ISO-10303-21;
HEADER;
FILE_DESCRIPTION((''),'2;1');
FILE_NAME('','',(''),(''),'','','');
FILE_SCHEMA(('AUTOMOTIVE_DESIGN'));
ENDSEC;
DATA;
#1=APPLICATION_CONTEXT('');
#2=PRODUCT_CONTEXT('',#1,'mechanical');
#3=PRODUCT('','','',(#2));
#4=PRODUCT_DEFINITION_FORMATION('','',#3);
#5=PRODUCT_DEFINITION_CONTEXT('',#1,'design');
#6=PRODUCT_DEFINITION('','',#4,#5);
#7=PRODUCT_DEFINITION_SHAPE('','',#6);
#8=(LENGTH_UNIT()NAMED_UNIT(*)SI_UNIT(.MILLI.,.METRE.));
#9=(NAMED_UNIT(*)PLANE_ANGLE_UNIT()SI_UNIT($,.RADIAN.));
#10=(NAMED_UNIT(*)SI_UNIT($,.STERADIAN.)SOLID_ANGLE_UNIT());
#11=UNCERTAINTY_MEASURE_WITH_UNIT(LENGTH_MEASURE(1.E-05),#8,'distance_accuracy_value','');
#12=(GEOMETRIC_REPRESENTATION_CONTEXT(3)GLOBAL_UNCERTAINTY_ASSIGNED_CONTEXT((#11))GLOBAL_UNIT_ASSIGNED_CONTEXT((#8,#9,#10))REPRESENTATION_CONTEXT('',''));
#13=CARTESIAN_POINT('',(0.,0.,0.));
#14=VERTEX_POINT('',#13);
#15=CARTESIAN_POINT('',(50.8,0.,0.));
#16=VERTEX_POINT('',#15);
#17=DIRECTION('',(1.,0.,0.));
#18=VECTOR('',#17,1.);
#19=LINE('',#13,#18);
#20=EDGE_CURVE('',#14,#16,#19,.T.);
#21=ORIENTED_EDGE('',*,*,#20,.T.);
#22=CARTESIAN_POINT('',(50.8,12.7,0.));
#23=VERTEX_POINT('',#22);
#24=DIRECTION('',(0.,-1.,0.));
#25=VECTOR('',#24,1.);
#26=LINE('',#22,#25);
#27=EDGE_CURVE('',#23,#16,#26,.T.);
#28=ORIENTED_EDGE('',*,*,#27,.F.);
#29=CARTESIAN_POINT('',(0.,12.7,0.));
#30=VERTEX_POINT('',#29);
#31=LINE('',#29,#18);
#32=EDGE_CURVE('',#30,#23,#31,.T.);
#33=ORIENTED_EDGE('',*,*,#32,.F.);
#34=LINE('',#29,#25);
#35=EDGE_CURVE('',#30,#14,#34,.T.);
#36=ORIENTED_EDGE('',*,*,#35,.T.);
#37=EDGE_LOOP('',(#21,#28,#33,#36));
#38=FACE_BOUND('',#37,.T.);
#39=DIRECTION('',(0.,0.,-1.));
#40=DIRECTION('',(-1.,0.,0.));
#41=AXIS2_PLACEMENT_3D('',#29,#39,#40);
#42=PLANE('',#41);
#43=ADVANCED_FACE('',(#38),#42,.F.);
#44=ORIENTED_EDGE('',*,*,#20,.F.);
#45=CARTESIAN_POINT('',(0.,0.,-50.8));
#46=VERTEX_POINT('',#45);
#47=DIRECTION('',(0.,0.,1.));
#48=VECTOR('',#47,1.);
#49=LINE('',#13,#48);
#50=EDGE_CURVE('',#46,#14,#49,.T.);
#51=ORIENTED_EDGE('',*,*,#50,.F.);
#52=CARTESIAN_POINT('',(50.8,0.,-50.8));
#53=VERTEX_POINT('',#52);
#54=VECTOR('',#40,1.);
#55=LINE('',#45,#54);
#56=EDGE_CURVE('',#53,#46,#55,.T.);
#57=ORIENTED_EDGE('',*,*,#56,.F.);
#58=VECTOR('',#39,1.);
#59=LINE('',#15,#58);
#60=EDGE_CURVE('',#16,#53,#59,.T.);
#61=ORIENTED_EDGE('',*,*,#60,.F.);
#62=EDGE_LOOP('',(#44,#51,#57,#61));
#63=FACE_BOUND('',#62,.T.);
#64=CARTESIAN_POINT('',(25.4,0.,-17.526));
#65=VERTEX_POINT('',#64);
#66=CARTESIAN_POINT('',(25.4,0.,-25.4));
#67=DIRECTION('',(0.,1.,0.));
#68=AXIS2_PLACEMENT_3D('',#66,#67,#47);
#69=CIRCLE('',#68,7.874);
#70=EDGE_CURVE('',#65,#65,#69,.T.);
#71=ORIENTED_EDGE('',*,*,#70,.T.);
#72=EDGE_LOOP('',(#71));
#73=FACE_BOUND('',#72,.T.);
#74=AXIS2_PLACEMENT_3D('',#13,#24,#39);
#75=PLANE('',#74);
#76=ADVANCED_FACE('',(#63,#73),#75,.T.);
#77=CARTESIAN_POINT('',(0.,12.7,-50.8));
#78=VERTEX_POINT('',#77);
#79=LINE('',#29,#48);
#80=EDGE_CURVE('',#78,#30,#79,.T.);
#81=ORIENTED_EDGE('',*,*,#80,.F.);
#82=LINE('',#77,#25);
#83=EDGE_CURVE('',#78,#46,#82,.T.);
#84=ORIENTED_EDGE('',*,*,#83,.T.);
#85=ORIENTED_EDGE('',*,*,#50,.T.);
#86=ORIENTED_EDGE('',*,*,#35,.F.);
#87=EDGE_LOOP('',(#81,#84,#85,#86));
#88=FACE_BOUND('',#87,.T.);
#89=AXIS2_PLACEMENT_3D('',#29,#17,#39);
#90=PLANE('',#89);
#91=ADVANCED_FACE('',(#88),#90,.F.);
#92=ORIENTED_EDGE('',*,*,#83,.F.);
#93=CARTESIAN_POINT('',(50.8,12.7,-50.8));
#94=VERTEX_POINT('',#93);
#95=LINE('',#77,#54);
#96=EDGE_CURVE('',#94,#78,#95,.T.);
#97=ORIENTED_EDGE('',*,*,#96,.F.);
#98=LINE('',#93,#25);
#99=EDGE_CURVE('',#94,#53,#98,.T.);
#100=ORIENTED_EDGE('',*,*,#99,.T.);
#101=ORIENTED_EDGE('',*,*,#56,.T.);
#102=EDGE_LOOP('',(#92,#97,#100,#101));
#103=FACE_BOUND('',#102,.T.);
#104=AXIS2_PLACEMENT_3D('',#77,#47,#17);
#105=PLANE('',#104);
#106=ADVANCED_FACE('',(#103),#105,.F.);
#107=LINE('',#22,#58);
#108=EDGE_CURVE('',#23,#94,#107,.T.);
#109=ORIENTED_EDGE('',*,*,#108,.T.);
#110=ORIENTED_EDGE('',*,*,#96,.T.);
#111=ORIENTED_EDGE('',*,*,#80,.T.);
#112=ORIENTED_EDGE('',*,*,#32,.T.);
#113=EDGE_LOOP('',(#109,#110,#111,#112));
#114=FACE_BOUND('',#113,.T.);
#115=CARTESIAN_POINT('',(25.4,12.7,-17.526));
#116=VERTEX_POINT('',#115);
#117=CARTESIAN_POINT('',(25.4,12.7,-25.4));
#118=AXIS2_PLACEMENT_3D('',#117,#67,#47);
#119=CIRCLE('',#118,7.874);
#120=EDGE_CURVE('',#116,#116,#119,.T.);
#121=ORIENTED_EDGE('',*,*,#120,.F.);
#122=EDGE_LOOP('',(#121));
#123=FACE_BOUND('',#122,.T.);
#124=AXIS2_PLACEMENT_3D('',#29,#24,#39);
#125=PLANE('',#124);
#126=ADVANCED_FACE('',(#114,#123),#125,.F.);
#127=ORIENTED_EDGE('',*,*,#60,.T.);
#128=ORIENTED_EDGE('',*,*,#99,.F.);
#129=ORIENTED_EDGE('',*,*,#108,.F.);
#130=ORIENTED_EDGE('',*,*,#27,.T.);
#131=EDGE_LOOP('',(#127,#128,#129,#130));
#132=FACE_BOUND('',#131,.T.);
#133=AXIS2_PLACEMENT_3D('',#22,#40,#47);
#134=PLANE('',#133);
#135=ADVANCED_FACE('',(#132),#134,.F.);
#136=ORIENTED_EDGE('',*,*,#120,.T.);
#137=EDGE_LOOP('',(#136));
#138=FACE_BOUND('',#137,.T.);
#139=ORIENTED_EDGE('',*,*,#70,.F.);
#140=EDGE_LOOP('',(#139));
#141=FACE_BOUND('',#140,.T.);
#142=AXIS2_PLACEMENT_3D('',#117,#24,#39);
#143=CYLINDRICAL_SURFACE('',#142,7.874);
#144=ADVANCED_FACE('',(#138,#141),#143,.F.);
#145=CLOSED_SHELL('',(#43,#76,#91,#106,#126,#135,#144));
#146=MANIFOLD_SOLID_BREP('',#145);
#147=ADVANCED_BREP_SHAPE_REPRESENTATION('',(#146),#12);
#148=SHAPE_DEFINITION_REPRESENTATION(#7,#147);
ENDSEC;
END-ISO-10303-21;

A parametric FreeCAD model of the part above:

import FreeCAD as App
import Part
import Sketcher
Q = App.Units.Quantity


def add_polygon(sketch, points):
    """Adds a closed chain of lines whose ends are joined by coincident constraints."""
    first, n = sketch.GeometryCount, len(points)
    for a, b in zip(points, points[1:] + points[:1]):
        sketch.addGeometry(Part.LineSegment(App.Vector(*a, 0), App.Vector(*b, 0)), False)
    for i in range(n):
        sketch.addConstraint(Sketcher.Constraint("Coincident", first + i, 2, first + (i + 1) % n, 1))

doc = App.newDocument("Part")
body = doc.addObject("PartDesign::Body", "Body")

# Sketch on XZ plane
sketch1 = doc.addObject("Sketcher::SketchObject", "Sketch")
body.addObject(sketch1)
sketch1.AttachmentSupport = (doc.XZ_Plane, [""])
sketch1.MapMode = "FlatFace"
add_polygon(sketch1, [(0, -50.8), (0, 0), (50.8, 0), (50.8, -50.8)])  # lines 0-3
sketch1.addGeometry(Part.Circle(App.Vector(25.4, -25.4, 0), App.Vector(0, 0, 1), 7.874), False)  # 4
sketch1.addConstraint(Sketcher.Constraint("Vertical", 0))
sketch1.addConstraint(Sketcher.Constraint("Horizontal", 1))
sketch1.addConstraint(Sketcher.Constraint("Vertical", 2))
sketch1.addConstraint(Sketcher.Constraint("Horizontal", 3))
sketch1.addConstraint(Sketcher.Constraint("Coincident", 0, 2, -1, 1))
sketch1.addConstraint(Sketcher.Constraint("Equal", 3, 0))
sketch1.addConstraint(Sketcher.Constraint("Diameter", 4, Q("0.62 in")))
sketch1.addConstraint(Sketcher.Constraint("DistanceX", 1, 1, 1, 2, Q("2 in")))
sketch1.addConstraint(Sketcher.Constraint("DistanceX", -1, 1, 4, 3, Q("1 in")))
sketch1.addConstraint(Sketcher.Constraint("DistanceY", 4, 3, -1, 1, Q("1 in")))
pad1 = doc.addObject("PartDesign::Pad", "Pad")
body.addObject(pad1)
pad1.Profile = sketch1
pad1.Length = Q("0.5 in")
pad1.Reversed = True

doc.recompute()
